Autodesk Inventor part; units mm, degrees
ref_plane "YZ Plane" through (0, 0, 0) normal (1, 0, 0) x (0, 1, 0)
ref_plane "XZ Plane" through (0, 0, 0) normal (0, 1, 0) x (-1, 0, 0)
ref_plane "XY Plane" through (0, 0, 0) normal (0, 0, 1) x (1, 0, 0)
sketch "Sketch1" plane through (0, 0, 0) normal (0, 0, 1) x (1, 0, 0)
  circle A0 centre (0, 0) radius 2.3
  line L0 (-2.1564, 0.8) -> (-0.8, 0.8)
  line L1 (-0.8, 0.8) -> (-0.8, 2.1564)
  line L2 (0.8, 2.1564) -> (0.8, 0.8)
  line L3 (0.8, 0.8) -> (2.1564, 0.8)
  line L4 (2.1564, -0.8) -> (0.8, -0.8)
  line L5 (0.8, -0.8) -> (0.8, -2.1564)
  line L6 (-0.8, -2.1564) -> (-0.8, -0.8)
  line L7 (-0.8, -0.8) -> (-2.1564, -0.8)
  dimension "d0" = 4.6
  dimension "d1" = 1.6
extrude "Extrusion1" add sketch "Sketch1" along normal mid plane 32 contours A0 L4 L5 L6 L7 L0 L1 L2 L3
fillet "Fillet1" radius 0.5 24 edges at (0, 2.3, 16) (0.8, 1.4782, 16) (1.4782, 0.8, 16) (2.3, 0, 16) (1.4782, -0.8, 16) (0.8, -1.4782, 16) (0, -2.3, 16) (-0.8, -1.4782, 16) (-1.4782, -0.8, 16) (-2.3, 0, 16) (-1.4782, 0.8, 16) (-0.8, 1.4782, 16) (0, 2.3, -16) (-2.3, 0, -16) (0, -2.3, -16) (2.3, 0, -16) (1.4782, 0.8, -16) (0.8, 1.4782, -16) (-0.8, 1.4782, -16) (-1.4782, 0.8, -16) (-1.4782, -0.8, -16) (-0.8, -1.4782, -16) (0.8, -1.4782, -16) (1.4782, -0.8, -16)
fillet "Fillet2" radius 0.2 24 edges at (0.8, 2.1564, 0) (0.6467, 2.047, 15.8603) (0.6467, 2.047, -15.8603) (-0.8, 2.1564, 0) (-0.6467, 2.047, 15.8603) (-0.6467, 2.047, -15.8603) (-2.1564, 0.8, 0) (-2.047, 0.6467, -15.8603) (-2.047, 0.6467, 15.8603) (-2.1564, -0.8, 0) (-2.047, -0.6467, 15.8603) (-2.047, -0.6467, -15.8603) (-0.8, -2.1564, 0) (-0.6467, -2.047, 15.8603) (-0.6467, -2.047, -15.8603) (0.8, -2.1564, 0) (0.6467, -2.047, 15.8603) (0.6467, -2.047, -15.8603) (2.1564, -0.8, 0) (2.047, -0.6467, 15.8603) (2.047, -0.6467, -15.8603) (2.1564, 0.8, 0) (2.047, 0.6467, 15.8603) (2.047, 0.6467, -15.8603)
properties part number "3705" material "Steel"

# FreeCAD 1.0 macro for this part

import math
import FreeCAD as App
import Part
import Sketcher
from FreeCAD import Vector
Q = App.Units.Quantity


def edges_at(feature, points):
    """Names of the edges that pass closest to the given points."""
    edges = feature.Shape.Edges
    near = lambda p: min(range(len(edges)), key=lambda i: edges[i].distToShape(Part.Vertex(*p))[0])
    return sorted({f"Edge{near(p) + 1}" for p in points})

doc = App.newDocument("Part")
body = doc.addObject("PartDesign::Body", "Body")

# Sketch on XY plane
sketch1 = body.newObject("Sketcher::SketchObject", "Sketch")
sketch1.AttachmentSupport = (doc.getObject("XY_Plane"), [""])
sketch1.MapMode = "FlatFace"
sketch1.addGeometry([
    Part.ArcOfCircle(Part.Circle(Vector(0, 0, 0), Vector(0, 0, 1), 2.3), math.radians(-20), math.radians(20)),  # 0
    Part.LineSegment(Vector(2.2, 0.8, 0), Vector(0.8, 0.8, 0)),  # 1
    Part.LineSegment(Vector(0.8, 0.8, 0), Vector(0.8, 2.2, 0)),  # 2
    Part.ArcOfCircle(Part.Circle(Vector(0, 0, 0), Vector(0, 0, 1), 2.3), math.radians(70), math.radians(110)),  # 3
    Part.LineSegment(Vector(-0.8, 2.2, 0), Vector(-0.8, 0.8, 0)),  # 4
    Part.LineSegment(Vector(-0.8, 0.8, 0), Vector(-2.2, 0.8, 0)),  # 5
    Part.ArcOfCircle(Part.Circle(Vector(0, 0, 0), Vector(0, 0, 1), 2.3), math.radians(160), math.radians(200)),  # 6
    Part.LineSegment(Vector(-2.2, -0.8, 0), Vector(-0.8, -0.8, 0)),  # 7
    Part.LineSegment(Vector(-0.8, -0.8, 0), Vector(-0.8, -2.2, 0)),  # 8
    Part.ArcOfCircle(Part.Circle(Vector(0, 0, 0), Vector(0, 0, 1), 2.3), math.radians(-110), math.radians(-70)),  # 9
    Part.LineSegment(Vector(0.8, -2.2, 0), Vector(0.8, -0.8, 0)),  # 10
    Part.LineSegment(Vector(0.8, -0.8, 0), Vector(2.2, -0.8, 0)),  # 11
], False)
sketch1.addConstraint([
    Sketcher.Constraint("Coincident", 0, 2, 1, 1),
    Sketcher.Constraint("Coincident", 1, 2, 2, 1),
    Sketcher.Constraint("Coincident", 2, 2, 3, 1),
    Sketcher.Constraint("Coincident", 3, 2, 4, 1),
    Sketcher.Constraint("Coincident", 4, 2, 5, 1),
    Sketcher.Constraint("Coincident", 5, 2, 6, 1),
    Sketcher.Constraint("Coincident", 6, 2, 7, 1),
    Sketcher.Constraint("Coincident", 7, 2, 8, 1),
    Sketcher.Constraint("Coincident", 8, 2, 9, 1),
    Sketcher.Constraint("Coincident", 9, 2, 10, 1),
    Sketcher.Constraint("Coincident", 10, 2, 11, 1),
    Sketcher.Constraint("Coincident", 11, 2, 0, 1),
    Sketcher.Constraint("Horizontal", 1),
    Sketcher.Constraint("Vertical", 2),
    Sketcher.Constraint("Vertical", 4),
    Sketcher.Constraint("Horizontal", 5),
    Sketcher.Constraint("Horizontal", 7),
    Sketcher.Constraint("Vertical", 8),
    Sketcher.Constraint("Vertical", 10),
    Sketcher.Constraint("Horizontal", 11),
    Sketcher.Constraint("Coincident", 0, 3, -1, 1),
    Sketcher.Constraint("Coincident", 3, 3, -1, 1),
    Sketcher.Constraint("Coincident", 6, 3, -1, 1),
    Sketcher.Constraint("Coincident", 9, 3, -1, 1),
    Sketcher.Constraint("Equal", 0, 3),
    Sketcher.Constraint("Equal", 3, 6),
    Sketcher.Constraint("Equal", 6, 9),
    Sketcher.Constraint("Symmetric", 1, 2, 7, 2, -1, 1),
    Sketcher.Constraint("Symmetric", 4, 2, 10, 2, -1, 1),
    Sketcher.Constraint("Symmetric", 1, 2, 4, 2, -2),
    Sketcher.Constraint("Equal", 11, 2),
    Sketcher.Constraint("Radius", 0, Q("2.3 mm")),
    Sketcher.Constraint("DistanceX", 3, 2, 2, 2, Q("1.6 mm")),
])
pad1 = body.newObject("PartDesign::Pad", "Pad")
pad1.Profile = sketch1
pad1.Length = 32
pad1.Midplane = True
doc.recompute()

fillet = body.newObject("PartDesign::Fillet", "Fillet")
fillet.Base = (pad1, edges_at(pad1, [
    (0, 2.3, 16),
    (0.8, 1.478, 16),
    (1.478, 0.8, 16),
    (2.3, 0, 16),
    (1.478, -0.8, 16),
    (0.8, -1.478, 16),
    (0, -2.3, 16),
    (-0.8, -1.478, 16),
    (-1.478, -0.8, 16),
    (-2.3, 0, 16),
    (-1.478, 0.8, 16),
    (-0.8, 1.478, 16),
    (0, 2.3, -16),
    (-2.3, 0, -16),
    (0, -2.3, -16),
    (2.3, 0, -16),
    (1.478, 0.8, -16),
    (0.8, 1.478, -16),
    (-0.8, 1.478, -16),
    (-1.478, 0.8, -16),
    (-1.478, -0.8, -16),
    (-0.8, -1.478, -16),
    (0.8, -1.478, -16),
    (1.478, -0.8, -16),
]))
fillet.Radius = 0.5
doc.recompute()

fillet2 = body.newObject("PartDesign::Fillet", "Fillet001")
fillet2.Base = (fillet, edges_at(fillet, [
    (0.8, 2.156, 0),
    (0.647, 2.047, 15.86),
    (0.647, 2.047, -15.86),
    (-0.8, 2.156, 0),
    (-0.647, 2.047, 15.86),
    (-0.647, 2.047, -15.86),
    (-2.156, 0.8, 0),
    (-2.047, 0.647, -15.86),
    (-2.047, 0.647, 15.86),
    (-2.156, -0.8, 0),
    (-2.047, -0.647, 15.86),
    (-2.047, -0.647, -15.86),
    (-0.8, -2.156, 0),
    (-0.647, -2.047, 15.86),
    (-0.647, -2.047, -15.86),
    (0.8, -2.156, 0),
    (0.647, -2.047, 15.86),
    (0.647, -2.047, -15.86),
    (2.156, -0.8, 0),
    (2.047, -0.647, 15.86),
    (2.047, -0.647, -15.86),
    (2.156, 0.8, 0),
    (2.047, 0.647, 15.86),
    (2.047, 0.647, -15.86),
]))
fillet2.Radius = 0.2

doc.recompute()
